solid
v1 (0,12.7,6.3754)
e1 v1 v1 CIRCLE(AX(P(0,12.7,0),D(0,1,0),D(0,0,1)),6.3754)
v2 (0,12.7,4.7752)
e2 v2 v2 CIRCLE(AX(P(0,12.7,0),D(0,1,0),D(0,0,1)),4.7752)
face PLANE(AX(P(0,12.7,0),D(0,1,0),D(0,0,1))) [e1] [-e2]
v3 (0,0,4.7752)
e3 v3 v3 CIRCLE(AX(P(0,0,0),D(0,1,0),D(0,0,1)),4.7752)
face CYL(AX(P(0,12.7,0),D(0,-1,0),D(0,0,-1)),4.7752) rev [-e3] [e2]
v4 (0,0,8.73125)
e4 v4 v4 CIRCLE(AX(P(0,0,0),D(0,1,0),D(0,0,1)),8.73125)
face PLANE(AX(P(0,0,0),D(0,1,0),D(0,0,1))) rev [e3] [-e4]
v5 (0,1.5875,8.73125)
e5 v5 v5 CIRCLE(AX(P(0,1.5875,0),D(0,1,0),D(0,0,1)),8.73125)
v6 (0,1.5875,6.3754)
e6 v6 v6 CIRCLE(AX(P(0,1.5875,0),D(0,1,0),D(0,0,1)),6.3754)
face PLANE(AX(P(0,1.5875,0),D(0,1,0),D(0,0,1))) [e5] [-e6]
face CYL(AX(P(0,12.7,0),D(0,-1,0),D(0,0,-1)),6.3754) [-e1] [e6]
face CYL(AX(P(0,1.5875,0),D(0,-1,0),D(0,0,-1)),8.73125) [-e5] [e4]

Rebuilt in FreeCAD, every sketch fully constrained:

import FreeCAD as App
import Part
import Sketcher
from FreeCAD import Vector
Q = App.Units.Quantity

doc = App.newDocument("Part")
body = doc.addObject("PartDesign::Body", "Body")

# Sketch on XZ plane
sketch1 = doc.addObject("Sketcher::SketchObject", "Sketch")
body.addObject(sketch1)
sketch1.AttachmentSupport = (doc.XZ_Plane, [""])
sketch1.MapMode = "FlatFace"
sketch1.addGeometry([
    Part.Circle(Vector(0, 0, 0), Vector(0, 0, 1), 6.4),
    Part.Circle(Vector(0, 0, 0), Vector(0, 0, 1), 4.8),
], False)
sketch1.addConstraint([
    Sketcher.Constraint("Coincident", 0, 3, -1, 1),
    Sketcher.Constraint("Coincident", 1, 3, -1, 1),
    Sketcher.Constraint("Diameter", 0, Q("0.502 in")),
    Sketcher.Constraint("Diameter", 1, Q("0.376 in")),
])
pad1 = doc.addObject("PartDesign::Pad", "Pad")
body.addObject(pad1)
pad1.Profile = sketch1
pad1.Length = Q("0.5 in")
pad1.Reversed = True

# Sketch on XZ plane
sketch2 = doc.addObject("Sketcher::SketchObject", "Sketch001")
body.addObject(sketch2)
sketch2.AttachmentSupport = (doc.XZ_Plane, [""])
sketch2.MapMode = "FlatFace"
sketch2.addGeometry([
    Part.Circle(Vector(0, 0, 0), Vector(0, 0, 1), 9),
    Part.Circle(Vector(0, 0, 0), Vector(0, 0, 1), 6),
], False)
sketch2.addConstraint([
    Sketcher.Constraint("Coincident", 0, 3, -1, 1),
    Sketcher.Constraint("Coincident", 1, 3, -1, 1),
    Sketcher.Constraint("Diameter", 0, Q("0.6875 in")),
    Sketcher.Constraint("Diameter", 1, Q("0.502 in")),
])
pad2 = doc.addObject("PartDesign::Pad", "Pad001")
body.addObject(pad2)
pad2.Profile = sketch2
pad2.Length = Q("0.0625 in")
pad2.Reversed = True

doc.recompute()
